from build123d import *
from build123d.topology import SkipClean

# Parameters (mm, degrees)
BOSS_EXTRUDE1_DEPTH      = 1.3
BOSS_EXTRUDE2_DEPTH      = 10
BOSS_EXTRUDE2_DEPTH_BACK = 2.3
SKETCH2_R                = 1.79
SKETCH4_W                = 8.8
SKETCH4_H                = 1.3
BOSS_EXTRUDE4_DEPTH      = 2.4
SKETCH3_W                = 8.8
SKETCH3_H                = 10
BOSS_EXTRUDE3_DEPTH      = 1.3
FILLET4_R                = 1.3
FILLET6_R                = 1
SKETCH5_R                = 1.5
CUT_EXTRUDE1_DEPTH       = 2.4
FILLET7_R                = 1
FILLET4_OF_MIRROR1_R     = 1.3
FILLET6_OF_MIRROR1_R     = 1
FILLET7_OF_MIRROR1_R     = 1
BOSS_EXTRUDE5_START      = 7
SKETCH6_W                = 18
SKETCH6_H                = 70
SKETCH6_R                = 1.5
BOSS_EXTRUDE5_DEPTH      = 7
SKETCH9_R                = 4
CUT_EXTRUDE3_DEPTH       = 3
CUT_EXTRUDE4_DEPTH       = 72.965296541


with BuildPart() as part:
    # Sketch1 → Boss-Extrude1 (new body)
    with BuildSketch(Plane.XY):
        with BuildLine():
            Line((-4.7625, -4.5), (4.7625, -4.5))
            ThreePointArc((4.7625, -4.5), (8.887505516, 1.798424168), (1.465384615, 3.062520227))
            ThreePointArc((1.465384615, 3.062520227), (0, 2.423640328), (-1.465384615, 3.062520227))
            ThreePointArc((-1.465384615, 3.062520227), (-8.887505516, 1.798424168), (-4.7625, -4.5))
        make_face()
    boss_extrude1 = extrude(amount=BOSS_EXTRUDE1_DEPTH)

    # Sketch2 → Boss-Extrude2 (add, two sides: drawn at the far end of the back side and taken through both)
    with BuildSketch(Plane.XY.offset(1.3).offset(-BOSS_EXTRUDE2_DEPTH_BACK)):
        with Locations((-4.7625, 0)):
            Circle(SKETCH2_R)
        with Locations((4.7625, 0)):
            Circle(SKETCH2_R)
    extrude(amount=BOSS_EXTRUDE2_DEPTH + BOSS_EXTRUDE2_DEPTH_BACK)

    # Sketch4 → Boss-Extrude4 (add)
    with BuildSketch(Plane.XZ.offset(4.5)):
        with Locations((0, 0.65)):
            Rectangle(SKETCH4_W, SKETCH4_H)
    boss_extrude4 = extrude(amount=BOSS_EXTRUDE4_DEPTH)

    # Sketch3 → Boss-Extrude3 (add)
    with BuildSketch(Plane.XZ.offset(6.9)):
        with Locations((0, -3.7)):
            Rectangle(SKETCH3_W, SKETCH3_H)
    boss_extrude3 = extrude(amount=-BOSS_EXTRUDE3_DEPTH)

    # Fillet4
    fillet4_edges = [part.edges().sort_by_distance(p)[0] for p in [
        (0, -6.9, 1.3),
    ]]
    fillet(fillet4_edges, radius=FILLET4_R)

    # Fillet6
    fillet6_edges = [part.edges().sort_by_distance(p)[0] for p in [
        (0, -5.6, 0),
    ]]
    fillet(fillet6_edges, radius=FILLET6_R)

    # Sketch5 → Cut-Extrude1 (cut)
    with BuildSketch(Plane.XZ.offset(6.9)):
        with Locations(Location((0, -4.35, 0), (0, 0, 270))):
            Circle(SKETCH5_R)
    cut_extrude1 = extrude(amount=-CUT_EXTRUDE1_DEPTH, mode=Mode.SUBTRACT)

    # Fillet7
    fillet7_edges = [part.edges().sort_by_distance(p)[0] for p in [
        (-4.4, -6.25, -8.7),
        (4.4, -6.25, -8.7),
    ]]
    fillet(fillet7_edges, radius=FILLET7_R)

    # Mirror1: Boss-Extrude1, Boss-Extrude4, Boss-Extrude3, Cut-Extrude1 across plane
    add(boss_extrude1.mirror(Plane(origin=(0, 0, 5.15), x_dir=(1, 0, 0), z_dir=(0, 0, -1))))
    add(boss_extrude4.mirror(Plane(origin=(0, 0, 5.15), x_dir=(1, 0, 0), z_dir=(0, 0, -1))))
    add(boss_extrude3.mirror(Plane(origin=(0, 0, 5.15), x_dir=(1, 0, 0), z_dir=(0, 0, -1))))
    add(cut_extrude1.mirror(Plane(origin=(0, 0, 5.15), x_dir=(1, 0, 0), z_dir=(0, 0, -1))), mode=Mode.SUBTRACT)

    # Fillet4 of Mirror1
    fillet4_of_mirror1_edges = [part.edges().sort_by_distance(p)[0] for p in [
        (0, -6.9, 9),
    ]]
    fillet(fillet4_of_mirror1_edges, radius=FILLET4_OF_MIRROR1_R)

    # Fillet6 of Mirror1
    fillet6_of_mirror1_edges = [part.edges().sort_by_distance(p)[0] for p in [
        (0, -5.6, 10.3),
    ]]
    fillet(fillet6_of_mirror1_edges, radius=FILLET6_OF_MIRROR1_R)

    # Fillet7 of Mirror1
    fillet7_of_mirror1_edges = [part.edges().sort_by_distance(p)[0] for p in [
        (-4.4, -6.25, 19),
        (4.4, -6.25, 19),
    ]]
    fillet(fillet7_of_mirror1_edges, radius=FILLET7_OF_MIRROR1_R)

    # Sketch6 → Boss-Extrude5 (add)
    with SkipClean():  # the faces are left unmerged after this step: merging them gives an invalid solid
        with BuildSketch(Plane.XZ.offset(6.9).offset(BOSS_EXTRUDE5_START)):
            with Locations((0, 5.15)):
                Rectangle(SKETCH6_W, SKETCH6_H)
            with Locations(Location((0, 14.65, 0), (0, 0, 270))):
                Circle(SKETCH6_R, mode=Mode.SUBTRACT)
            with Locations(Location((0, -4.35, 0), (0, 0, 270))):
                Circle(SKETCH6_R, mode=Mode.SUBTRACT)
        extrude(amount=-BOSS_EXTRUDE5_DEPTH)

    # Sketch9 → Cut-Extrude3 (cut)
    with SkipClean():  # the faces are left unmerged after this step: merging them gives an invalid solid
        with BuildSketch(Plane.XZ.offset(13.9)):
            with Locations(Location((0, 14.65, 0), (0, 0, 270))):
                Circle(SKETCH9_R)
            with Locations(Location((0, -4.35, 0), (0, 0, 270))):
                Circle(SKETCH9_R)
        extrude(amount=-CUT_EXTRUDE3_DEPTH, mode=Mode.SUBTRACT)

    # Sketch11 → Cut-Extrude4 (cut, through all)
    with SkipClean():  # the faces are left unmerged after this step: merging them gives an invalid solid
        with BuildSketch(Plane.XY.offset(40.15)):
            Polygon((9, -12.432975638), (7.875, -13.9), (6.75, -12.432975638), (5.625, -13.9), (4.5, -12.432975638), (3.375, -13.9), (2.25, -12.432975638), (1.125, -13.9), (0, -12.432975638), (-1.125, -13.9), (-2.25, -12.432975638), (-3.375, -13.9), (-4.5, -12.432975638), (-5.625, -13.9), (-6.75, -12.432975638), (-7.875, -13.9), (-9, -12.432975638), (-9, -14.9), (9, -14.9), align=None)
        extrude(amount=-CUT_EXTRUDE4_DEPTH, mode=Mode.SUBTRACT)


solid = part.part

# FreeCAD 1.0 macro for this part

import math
import FreeCAD as App
import Part
import Sketcher
from FreeCAD import Vector


def edges_at(feature, points):
    """Names of the edges that pass closest to the given points."""
    edges = feature.Shape.Edges
    near = lambda p: min(range(len(edges)), key=lambda i: edges[i].distToShape(Part.Vertex(*p))[0])
    return sorted({f"Edge{near(p) + 1}" for p in points})

doc = App.newDocument("Part")
body = doc.addObject("PartDesign::Body", "Body")

# Sketch on XY plane
sketch1 = doc.addObject("Sketcher::SketchObject", "Sketch")
body.addObject(sketch1)
sketch1.AttachmentSupport = (doc.XY_Plane, [""])
sketch1.MapMode = "FlatFace"
sketch1.addGeometry([
    Part.LineSegment(Vector(-4.8, -4.5, 0), Vector(4.8, -4.5, 0)),
    Part.ArcOfCircle(Part.Circle(Vector(4.8, 0, 0), Vector(0, 0, 1), 4.5), math.radians(-90), math.radians(137)),
    Part.ArcOfCircle(Part.Circle(Vector(0, 4.4, 0), Vector(0, 0, 1), 2), math.radians(-137), math.radians(-43)),
    Part.ArcOfCircle(Part.Circle(Vector(-4.8, 0, 0), Vector(0, 0, 1), 4.5), math.radians(43), math.radians(270)),
], False)
sketch1.addConstraint([
    Sketcher.Constraint("Tangent", 0, 2, 1, 1),
    Sketcher.Constraint("Tangent", 1, 2, 2, 2),
    Sketcher.Constraint("Tangent", 2, 1, 3, 1),
    Sketcher.Constraint("Tangent", 3, 2, 0, 1),
    Sketcher.Constraint("Horizontal", 0),
    Sketcher.Constraint("Equal", 1, 3),
    Sketcher.Constraint("Symmetric", 1, 3, 3, 3, -1, 1),
    Sketcher.Constraint("Radius", 2, 2.0),
    Sketcher.Constraint("Radius", 1, 4.5),
    Sketcher.Constraint("DistanceX", 0, 1, 0, 2, 9.525),
])
pad1 = doc.addObject("PartDesign::Pad", "Pad")
body.addObject(pad1)
pad1.Profile = sketch1
pad1.Length = 1.3

# Sketch on XY plane
sketch2 = doc.addObject("Sketcher::SketchObject", "Sketch001")
body.addObject(sketch2)
sketch2.AttachmentSupport = (doc.XY_Plane, [""])
sketch2.MapMode = "FlatFace"
sketch2.AttachmentOffset = App.Placement(Vector(0, 0, 1.3), App.Rotation())
sketch2.addGeometry([
    Part.Circle(Vector(-4.8, 0, 0), Vector(0, 0, 1), 1.8),
    Part.Circle(Vector(4.8, 0, 0), Vector(0, 0, 1), 1.8),
], False)
sketch2.addConstraint([
    Sketcher.Constraint("Equal", 0, 1),
    Sketcher.Constraint("Symmetric", 0, 3, 1, 3, -1, 1),
    Sketcher.Constraint("PointOnObject", 0, 3, -1),
    Sketcher.Constraint("Diameter", 0, 3.58),
    Sketcher.Constraint("DistanceX", 0, 3, 1, 3, 9.525),
])
pad2 = doc.addObject("PartDesign::Pad", "Pad001")
body.addObject(pad2)
pad2.Profile = sketch2
pad2.Type = "TwoLengths"
pad2.Length = 10
pad2.Length2 = 2.3

# Sketch on XZ plane
sketch3 = doc.addObject("Sketcher::SketchObject", "Sketch002")
body.addObject(sketch3)
sketch3.AttachmentSupport = (doc.XZ_Plane, [""])
sketch3.MapMode = "FlatFace"
sketch3.AttachmentOffset = App.Placement(Vector(0, 0, 4.5), App.Rotation())
sketch3.addGeometry([
    Part.LineSegment(Vector(-4.4, 1.3, 0), Vector(-4.4, 0, 0)),
    Part.LineSegment(Vector(-4.4, 0, 0), Vector(4.4, 0, 0)),
    Part.LineSegment(Vector(4.4, 0, 0), Vector(4.4, 1.3, 0)),
    Part.LineSegment(Vector(4.4, 1.3, 0), Vector(-4.4, 1.3, 0)),
], False)
sketch3.addConstraint([
    Sketcher.Constraint("Coincident", 0, 2, 1, 1),
    Sketcher.Constraint("Coincident", 1, 2, 2, 1),
    Sketcher.Constraint("Coincident", 2, 2, 3, 1),
    Sketcher.Constraint("Coincident", 3, 2, 0, 1),
    Sketcher.Constraint("Vertical", 0),
    Sketcher.Constraint("Horizontal", 1),
    Sketcher.Constraint("Vertical", 2),
    Sketcher.Constraint("Horizontal", 3),
    Sketcher.Constraint("Symmetric", 0, 2, 1, 2, -1, 1),
    Sketcher.Constraint("DistanceX", 1, 1, 1, 2, 8.8),
    Sketcher.Constraint("DistanceY", 0, 2, 0, 1, 1.3),
])
pad3 = doc.addObject("PartDesign::Pad", "Pad002")
body.addObject(pad3)
pad3.Profile = sketch3
pad3.Length = 2.4

# Sketch on XZ plane
sketch4 = doc.addObject("Sketcher::SketchObject", "Sketch003")
body.addObject(sketch4)
sketch4.AttachmentSupport = (doc.XZ_Plane, [""])
sketch4.MapMode = "FlatFace"
sketch4.AttachmentOffset = App.Placement(Vector(0, 0, 6.9), App.Rotation())
sketch4.addGeometry([
    Part.LineSegment(Vector(-4, 1, 0), Vector(-4, -9, 0)),
    Part.LineSegment(Vector(-4, -9, 0), Vector(4, -9, 0)),
    Part.LineSegment(Vector(4, -9, 0), Vector(4, 1, 0)),
    Part.LineSegment(Vector(4, 1, 0), Vector(-4, 1, 0)),
], False)
sketch4.addConstraint([
    Sketcher.Constraint("Coincident", 0, 2, 1, 1),
    Sketcher.Constraint("Coincident", 1, 2, 2, 1),
    Sketcher.Constraint("Coincident", 2, 2, 3, 1),
    Sketcher.Constraint("Coincident", 3, 2, 0, 1),
    Sketcher.Constraint("Vertical", 0),
    Sketcher.Constraint("Horizontal", 1),
    Sketcher.Constraint("Vertical", 2),
    Sketcher.Constraint("Horizontal", 3),
    Sketcher.Constraint("DistanceY", 0, 2, 0, 1, 10.0),
    Sketcher.Constraint("DistanceX", 1, 1, 1, 2, 8.8),
    Sketcher.Constraint("DistanceX", 0, 2, -1, 1, 4.4),
    Sketcher.Constraint("DistanceY", 0, 2, -1, 1, 8.7),
])
pad4 = doc.addObject("PartDesign::Pad", "Pad003")
body.addObject(pad4)
pad4.Profile = sketch4
pad4.Length = 1.3
pad4.Reversed = True
doc.recompute()

fillet = doc.addObject("PartDesign::Fillet", "Fillet")
body.addObject(fillet)
fillet.Base = (pad4, edges_at(pad4, [(0, -6.9, 1.3)]))
fillet.Radius = 1.3
doc.recompute()

fillet2 = doc.addObject("PartDesign::Fillet", "Fillet001")
body.addObject(fillet2)
fillet2.Base = (fillet, edges_at(fillet, [(0, -5.6, 0)]))
fillet2.Radius = 1

# Sketch on XZ plane
sketch5 = doc.addObject("Sketcher::SketchObject", "Sketch004")
body.addObject(sketch5)
sketch5.AttachmentSupport = (doc.XZ_Plane, [""])
sketch5.MapMode = "FlatFace"
sketch5.AttachmentOffset = App.Placement(Vector(0, 0, 6.9), App.Rotation())
sketch5.addGeometry(Part.Circle(Vector(0, -4.3, 0), Vector(0, 0, 1), 1.5), False)
sketch5.addConstraint([
    Sketcher.Constraint("PointOnObject", 0, 3, -2),
    Sketcher.Constraint("Diameter", 0, 3.0),
    Sketcher.Constraint("DistanceY", 0, 3, -1, 1, 4.35),
])
pocket1 = doc.addObject("PartDesign::Pocket", "Pocket")
body.addObject(pocket1)
pocket1.Profile = sketch5
pocket1.Length = 2.4
doc.recompute()

fillet3 = doc.addObject("PartDesign::Fillet", "Fillet002")
body.addObject(fillet3)
fillet3.Base = (pocket1, edges_at(pocket1, [(-4.4, -6.25, -8.7), (4.4, -6.25, -8.7)]))
fillet3.Radius = 1
doc.recompute()

datumplane = doc.addObject("PartDesign::Plane", "DatumPlane")
body.addObject(datumplane)
datumplane.AttachmentSupport = (doc.XY_Plane, [""])
datumplane.MapMode = "FlatFace"
datumplane.AttachmentOffset = App.Placement(Vector(0, 0, 5.15), App.Rotation())
mirrored = doc.addObject("PartDesign::Mirrored", "Mirrored")
body.addObject(mirrored)
mirrored.Originals = [pad1, pad3, pad4, pocket1]
mirrored.MirrorPlane = (datumplane, [""])
body.Tip = mirrored
doc.recompute()

fillet4 = doc.addObject("PartDesign::Fillet", "Fillet003")
body.addObject(fillet4)
fillet4.Base = (mirrored, edges_at(mirrored, [(0, -6.9, 9)]))
fillet4.Radius = 1.3
doc.recompute()

fillet5 = doc.addObject("PartDesign::Fillet", "Fillet004")
body.addObject(fillet5)
fillet5.Base = (fillet4, edges_at(fillet4, [(0, -5.6, 10.3)]))
fillet5.Radius = 1
doc.recompute()

fillet6 = doc.addObject("PartDesign::Fillet", "Fillet005")
body.addObject(fillet6)
fillet6.Base = (fillet5, edges_at(fillet5, [(-4.4, -6.25, 19), (4.4, -6.25, 19)]))
fillet6.Radius = 1

# Sketch on XZ plane
sketch6 = doc.addObject("Sketcher::SketchObject", "Sketch005")
body.addObject(sketch6)
sketch6.AttachmentSupport = (doc.XZ_Plane, [""])
sketch6.MapMode = "FlatFace"
sketch6.AttachmentOffset = App.Placement(Vector(0, 0, 13.9), App.Rotation())
sketch6.addGeometry([
    Part.LineSegment(Vector(-9, 40.1, 0), Vector(-9, -29.9, 0)),  # 0
    Part.LineSegment(Vector(-9, -29.9, 0), Vector(9, -29.9, 0)),  # 1
    Part.LineSegment(Vector(9, -29.9, 0), Vector(9, 40.1, 0)),  # 2
    Part.LineSegment(Vector(9, 40.1, 0), Vector(-9, 40.1, 0)),  # 3
    Part.Circle(Vector(0, -4.3, 0), Vector(0, 0, 1), 1.5),  # 4
    Part.Circle(Vector(0, 14.7, 0), Vector(0, 0, 1), 1.5),  # 5
], False)
sketch6.addConstraint([
    Sketcher.Constraint("Coincident", 0, 2, 1, 1),
    Sketcher.Constraint("Coincident", 1, 2, 2, 1),
    Sketcher.Constraint("Coincident", 2, 2, 3, 1),
    Sketcher.Constraint("Coincident", 3, 2, 0, 1),
    Sketcher.Constraint("Vertical", 0),
    Sketcher.Constraint("Horizontal", 1),
    Sketcher.Constraint("Vertical", 2),
    Sketcher.Constraint("Horizontal", 3),
    Sketcher.Constraint("Equal", 4, 5),
    Sketcher.Constraint("PointOnObject", 4, 3, -2),
    Sketcher.Constraint("PointOnObject", 5, 3, -2),
    Sketcher.Constraint("Diameter", 4, 3.0),
    Sketcher.Constraint("DistanceX", 1, 1, 1, 2, 18.0),
    Sketcher.Constraint("DistanceY", 0, 2, 0, 1, 70.0),
    Sketcher.Constraint("DistanceX", 0, 2, -1, 1, 9.0),
    Sketcher.Constraint("DistanceY", 4, 3, 5, 3, 19.0),
    Sketcher.Constraint("DistanceY", 0, 2, 4, 3, 25.5),
    Sketcher.Constraint("DistanceY", 4, 3, -1, 1, 4.35),
])
pad5 = doc.addObject("PartDesign::Pad", "Pad004")
body.addObject(pad5)
pad5.Profile = sketch6
pad5.Length = 7
pad5.Reversed = True

# Sketch on XZ plane
sketch7 = doc.addObject("Sketcher::SketchObject", "Sketch006")
body.addObject(sketch7)
sketch7.AttachmentSupport = (doc.XZ_Plane, [""])
sketch7.MapMode = "FlatFace"
sketch7.AttachmentOffset = App.Placement(Vector(0, 0, 13.9), App.Rotation())
sketch7.addGeometry([
    Part.Circle(Vector(0, 14.7, 0), Vector(0, 0, 1), 4),
    Part.Circle(Vector(0, -4.3, 0), Vector(0, 0, 1), 4),
], False)
sketch7.addConstraint([
    Sketcher.Constraint("Equal", 0, 1),
    Sketcher.Constraint("PointOnObject", 0, 3, -2),
    Sketcher.Constraint("PointOnObject", 1, 3, -2),
    Sketcher.Constraint("Diameter", 0, 8.0),
    Sketcher.Constraint("DistanceY", 1, 3, 0, 3, 19.0),
    Sketcher.Constraint("DistanceY", -1, 1, 0, 3, 14.65),
])
pocket2 = doc.addObject("PartDesign::Pocket", "Pocket001")
body.addObject(pocket2)
pocket2.Profile = sketch7
pocket2.Length = 3

# Sketch on XY plane
sketch8 = doc.addObject("Sketcher::SketchObject", "Sketch007")
body.addObject(sketch8)
sketch8.AttachmentSupport = (doc.XY_Plane, [""])
sketch8.MapMode = "FlatFace"
sketch8.AttachmentOffset = App.Placement(Vector(0, 0, 40.15), App.Rotation())
sketch8.addGeometry([
    Part.LineSegment(Vector(9, -12.4, 0), Vector(7.9, -13.9, 0)),  # 0
    Part.LineSegment(Vector(7.9, -13.9, 0), Vector(6.8, -12.4, 0)),  # 1
    Part.LineSegment(Vector(6.8, -12.4, 0), Vector(5.6, -13.9, 0)),  # 2
    Part.LineSegment(Vector(5.6, -13.9, 0), Vector(4.5, -12.4, 0)),  # 3
    Part.LineSegment(Vector(4.5, -12.4, 0), Vector(3.4, -13.9, 0)),  # 4
    Part.LineSegment(Vector(3.4, -13.9, 0), Vector(2.2, -12.4, 0)),  # 5
    Part.LineSegment(Vector(2.2, -12.4, 0), Vector(1.1, -13.9, 0)),  # 6
    Part.LineSegment(Vector(1.1, -13.9, 0), Vector(0, -12.4, 0)),  # 7
    Part.LineSegment(Vector(0, -12.4, 0), Vector(-1.1, -13.9, 0)),  # 8
    Part.LineSegment(Vector(-1.1, -13.9, 0), Vector(-2.2, -12.4, 0)),  # 9
    Part.LineSegment(Vector(-2.2, -12.4, 0), Vector(-3.4, -13.9, 0)),  # 10
    Part.LineSegment(Vector(-3.4, -13.9, 0), Vector(-4.5, -12.4, 0)),  # 11
    Part.LineSegment(Vector(-4.5, -12.4, 0), Vector(-5.6, -13.9, 0)),  # 12
    Part.LineSegment(Vector(-5.6, -13.9, 0), Vector(-6.8, -12.4, 0)),  # 13
    Part.LineSegment(Vector(-6.8, -12.4, 0), Vector(-7.9, -13.9, 0)),  # 14
    Part.LineSegment(Vector(-7.9, -13.9, 0), Vector(-9, -12.4, 0)),  # 15
    Part.LineSegment(Vector(-9, -12.4, 0), Vector(-9, -14.9, 0)),  # 16
    Part.LineSegment(Vector(-9, -14.9, 0), Vector(9, -14.9, 0)),  # 17
    Part.LineSegment(Vector(9, -14.9, 0), Vector(9, -12.4, 0)),  # 18
], False)
sketch8.addConstraint([
    Sketcher.Constraint("Coincident", 0, 2, 1, 1),
    Sketcher.Constraint("Coincident", 1, 2, 2, 1),
    Sketcher.Constraint("Coincident", 2, 2, 3, 1),
    Sketcher.Constraint("Coincident", 3, 2, 4, 1),
    Sketcher.Constraint("Coincident", 4, 2, 5, 1),
    Sketcher.Constraint("Coincident", 5, 2, 6, 1),
    Sketcher.Constraint("Coincident", 6, 2, 7, 1),
    Sketcher.Constraint("Coincident", 7, 2, 8, 1),
    Sketcher.Constraint("Coincident", 8, 2, 9, 1),
    Sketcher.Constraint("Coincident", 9, 2, 10, 1),
    Sketcher.Constraint("Coincident", 10, 2, 11, 1),
    Sketcher.Constraint("Coincident", 11, 2, 12, 1),
    Sketcher.Constraint("Coincident", 12, 2, 13, 1),
    Sketcher.Constraint("Coincident", 13, 2, 14, 1),
    Sketcher.Constraint("Coincident", 14, 2, 15, 1),
    Sketcher.Constraint("Coincident", 15, 2, 16, 1),
    Sketcher.Constraint("Coincident", 16, 2, 17, 1),
    Sketcher.Constraint("Coincident", 17, 2, 18, 1),
    Sketcher.Constraint("Coincident", 18, 2, 0, 1),
    Sketcher.Constraint("Vertical", 16),
    Sketcher.Constraint("Horizontal", 17),
    Sketcher.Constraint("Vertical", 18),
    Sketcher.Constraint("Symmetric", 6, 2, 8, 2, -2),
    Sketcher.Constraint("Symmetric", 5, 2, 9, 2, -2),
    Sketcher.Constraint("Symmetric", 4, 2, 10, 2, -2),
    Sketcher.Constraint("Symmetric", 3, 2, 11, 2, -2),
    Sketcher.Constraint("Symmetric", 2, 2, 12, 2, -2),
    Sketcher.Constraint("Symmetric", 1, 2, 13, 2, -2),
    Sketcher.Constraint("Symmetric", 0, 2, 14, 2, -2),
    Sketcher.Constraint("Symmetric", 15, 2, 18, 2, -2),
    Sketcher.Constraint("PointOnObject", 7, 2, -2),
    Sketcher.Constraint("Parallel", 0, 2),
    Sketcher.Constraint("Parallel", 1, 3),
    Sketcher.Constraint("Parallel", 2, 4),
    Sketcher.Constraint("Parallel", 3, 5),
    Sketcher.Constraint("Parallel", 4, 6),
    Sketcher.Constraint("Parallel", 5, 7),
    Sketcher.Constraint("Parallel", 6, 8),
    Sketcher.Constraint("Horizontal", 0, 2, 2, 2),
    Sketcher.Constraint("Horizontal", 1, 2, 3, 2),
    Sketcher.Constraint("Horizontal", 2, 2, 4, 2),
    Sketcher.Constraint("Horizontal", 3, 2, 5, 2),
    Sketcher.Constraint("Horizontal", 4, 2, 6, 2),
    Sketcher.Constraint("Horizontal", 5, 2, 7, 2),
    Sketcher.Constraint("Horizontal", 13, 2, 15, 2),
    Sketcher.Constraint("DistanceX", 17, 1, 17, 2, 18.0),
    Sketcher.Constraint("DistanceY", 16, 2, 14, 2, 1.0),
    Sketcher.Constraint("DistanceY", 0, 2, -1, 1, 13.9),
    Sketcher.Constraint("DistanceY", 16, 2, 16, 1, 2.467024),
])
pocket3 = doc.addObject("PartDesign::Pocket", "Pocket002")
body.addObject(pocket3)
pocket3.Profile = sketch8
pocket3.Type = "ThroughAll"

doc.recompute()
